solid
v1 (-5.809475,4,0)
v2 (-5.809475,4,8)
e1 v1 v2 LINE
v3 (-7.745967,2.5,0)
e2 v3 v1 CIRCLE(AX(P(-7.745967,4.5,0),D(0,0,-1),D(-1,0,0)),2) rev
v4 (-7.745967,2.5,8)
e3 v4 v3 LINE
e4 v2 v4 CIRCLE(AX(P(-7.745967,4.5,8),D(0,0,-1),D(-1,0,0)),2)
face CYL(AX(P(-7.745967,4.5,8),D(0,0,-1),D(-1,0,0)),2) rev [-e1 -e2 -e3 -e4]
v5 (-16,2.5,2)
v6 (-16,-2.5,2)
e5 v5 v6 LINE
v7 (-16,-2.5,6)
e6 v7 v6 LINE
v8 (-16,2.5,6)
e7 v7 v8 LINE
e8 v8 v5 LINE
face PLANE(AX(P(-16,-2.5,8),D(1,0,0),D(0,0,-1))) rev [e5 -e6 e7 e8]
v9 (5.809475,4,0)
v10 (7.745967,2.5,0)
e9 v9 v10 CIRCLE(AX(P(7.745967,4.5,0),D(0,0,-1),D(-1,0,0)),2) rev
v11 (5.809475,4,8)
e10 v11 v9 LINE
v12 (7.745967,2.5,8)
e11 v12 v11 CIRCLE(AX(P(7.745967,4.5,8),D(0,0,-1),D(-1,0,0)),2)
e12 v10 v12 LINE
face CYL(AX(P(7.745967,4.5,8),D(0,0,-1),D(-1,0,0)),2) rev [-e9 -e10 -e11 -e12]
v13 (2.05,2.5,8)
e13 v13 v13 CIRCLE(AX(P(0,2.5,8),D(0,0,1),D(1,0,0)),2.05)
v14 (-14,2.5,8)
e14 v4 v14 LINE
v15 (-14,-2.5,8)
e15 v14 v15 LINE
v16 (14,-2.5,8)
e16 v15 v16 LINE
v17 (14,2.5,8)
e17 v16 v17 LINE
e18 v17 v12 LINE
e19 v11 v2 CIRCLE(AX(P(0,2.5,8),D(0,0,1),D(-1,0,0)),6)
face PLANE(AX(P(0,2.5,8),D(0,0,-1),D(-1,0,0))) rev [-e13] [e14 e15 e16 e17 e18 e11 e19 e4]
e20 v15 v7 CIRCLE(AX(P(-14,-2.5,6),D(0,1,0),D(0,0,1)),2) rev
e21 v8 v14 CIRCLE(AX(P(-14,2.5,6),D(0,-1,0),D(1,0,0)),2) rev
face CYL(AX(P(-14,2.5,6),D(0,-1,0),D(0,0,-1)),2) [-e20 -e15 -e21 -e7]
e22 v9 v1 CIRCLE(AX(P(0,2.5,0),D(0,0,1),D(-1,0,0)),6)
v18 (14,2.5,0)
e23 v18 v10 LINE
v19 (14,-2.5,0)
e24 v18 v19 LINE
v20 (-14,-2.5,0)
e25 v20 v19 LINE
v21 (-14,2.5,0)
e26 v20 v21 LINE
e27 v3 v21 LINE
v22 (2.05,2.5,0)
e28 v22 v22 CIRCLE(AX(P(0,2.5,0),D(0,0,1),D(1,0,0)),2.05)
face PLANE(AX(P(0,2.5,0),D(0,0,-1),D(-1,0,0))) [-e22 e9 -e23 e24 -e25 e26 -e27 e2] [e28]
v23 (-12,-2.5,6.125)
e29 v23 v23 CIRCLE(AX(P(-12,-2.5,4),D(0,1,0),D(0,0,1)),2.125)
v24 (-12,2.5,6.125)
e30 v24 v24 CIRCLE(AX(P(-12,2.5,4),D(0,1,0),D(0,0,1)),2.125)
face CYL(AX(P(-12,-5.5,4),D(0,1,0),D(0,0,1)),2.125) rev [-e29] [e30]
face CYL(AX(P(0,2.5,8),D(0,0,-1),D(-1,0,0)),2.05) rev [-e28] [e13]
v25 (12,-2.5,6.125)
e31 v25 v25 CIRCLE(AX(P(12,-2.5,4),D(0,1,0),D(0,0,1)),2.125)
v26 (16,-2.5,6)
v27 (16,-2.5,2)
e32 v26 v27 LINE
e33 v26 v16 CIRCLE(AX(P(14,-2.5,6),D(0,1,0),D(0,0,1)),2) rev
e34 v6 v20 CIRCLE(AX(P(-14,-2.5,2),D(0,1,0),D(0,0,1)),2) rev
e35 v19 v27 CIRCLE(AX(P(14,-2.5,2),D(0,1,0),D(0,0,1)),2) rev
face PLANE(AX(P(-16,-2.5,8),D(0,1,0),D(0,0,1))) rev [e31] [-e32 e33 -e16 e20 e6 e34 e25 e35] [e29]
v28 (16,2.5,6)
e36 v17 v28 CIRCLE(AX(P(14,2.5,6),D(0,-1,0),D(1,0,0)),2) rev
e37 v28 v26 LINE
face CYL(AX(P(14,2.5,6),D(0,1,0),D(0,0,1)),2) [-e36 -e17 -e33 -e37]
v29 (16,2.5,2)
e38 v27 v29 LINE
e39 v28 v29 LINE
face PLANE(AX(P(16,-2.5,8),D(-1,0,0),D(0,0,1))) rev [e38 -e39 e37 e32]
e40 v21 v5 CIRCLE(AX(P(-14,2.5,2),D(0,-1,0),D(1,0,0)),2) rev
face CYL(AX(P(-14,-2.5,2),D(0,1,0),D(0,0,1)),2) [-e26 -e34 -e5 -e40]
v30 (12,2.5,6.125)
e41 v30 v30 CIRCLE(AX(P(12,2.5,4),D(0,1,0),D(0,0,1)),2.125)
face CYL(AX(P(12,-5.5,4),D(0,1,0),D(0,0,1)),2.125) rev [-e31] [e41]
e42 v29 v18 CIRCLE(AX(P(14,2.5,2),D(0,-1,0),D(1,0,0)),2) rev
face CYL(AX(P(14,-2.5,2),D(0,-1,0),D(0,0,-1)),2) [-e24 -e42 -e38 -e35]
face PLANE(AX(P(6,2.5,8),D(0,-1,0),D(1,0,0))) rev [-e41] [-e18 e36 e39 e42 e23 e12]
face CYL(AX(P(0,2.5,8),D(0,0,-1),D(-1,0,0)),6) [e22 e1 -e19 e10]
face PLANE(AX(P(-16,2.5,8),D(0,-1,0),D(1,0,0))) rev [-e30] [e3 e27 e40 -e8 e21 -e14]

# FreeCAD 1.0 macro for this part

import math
import FreeCAD as App
import Part
import Sketcher


def edges_at(feature, points):
    """Names of the edges that pass closest to the given points."""
    edges = feature.Shape.Edges
    near = lambda p: min(range(len(edges)), key=lambda i: edges[i].distToShape(Part.Vertex(*p))[0])
    return sorted({f"Edge{near(p) + 1}" for p in points})

doc = App.newDocument("Part")
params = doc.addObject("Spreadsheet::Sheet", "Params")
for row, (alias, value) in enumerate([
    ("sketch1_radius", "6 mm"),
    ("sketch1_diameter", "4.1 mm"),
    ("sketch1_width", "10 mm"),
    ("sketch1_height", "5 mm"),
    ("pad1_length", "8 mm"),
    ("sketch2_diameter", "4.25 mm"),
    ("pocket1_length", "8 mm"),
    ("fillet_radius", "2 mm"),
], start=1):
    params.set(f"A{row}", alias)
    params.set(f"B{row}", "=" + value)
    params.setAlias(f"B{row}", alias)

body = doc.addObject("PartDesign::Body", "Body")

# Sketch on XY plane
sketch1 = doc.addObject("Sketcher::SketchObject", "Sketch")
body.addObject(sketch1)
sketch1.AttachmentSupport = (doc.XY_Plane, [""])
sketch1.MapMode = "FlatFace"
sketch1.addGeometry([
    Part.LineSegment(App.Vector(16, 2.5, 0), App.Vector(6, 2.5, 0)),  # 0
    Part.ArcOfCircle(Part.Circle(App.Vector(0, 2.5, 0), App.Vector(0, 0, 1), 6), math.radians(0), math.radians(180)),  # 1
    Part.LineSegment(App.Vector(-6, 2.5, 0), App.Vector(-16, 2.5, 0)),  # 2
    Part.LineSegment(App.Vector(-16, 2.5, 0), App.Vector(-16, -2.5, 0)),  # 3
    Part.LineSegment(App.Vector(-16, -2.5, 0), App.Vector(16, -2.5, 0)),  # 4
    Part.LineSegment(App.Vector(16, -2.5, 0), App.Vector(16, 2.5, 0)),  # 5
    Part.Circle(App.Vector(0, 2.5, 0), App.Vector(0, 0, 1), 2),  # 6
], False)
sketch1.addConstraint([
    Sketcher.Constraint("Coincident", 0, 2, 1, 1),
    Sketcher.Constraint("Coincident", 1, 2, 2, 1),
    Sketcher.Constraint("Coincident", 2, 2, 3, 1),
    Sketcher.Constraint("Coincident", 3, 2, 4, 1),
    Sketcher.Constraint("Coincident", 4, 2, 5, 1),
    Sketcher.Constraint("Coincident", 5, 2, 0, 1),
    Sketcher.Constraint("Horizontal", 0),
    Sketcher.Constraint("Horizontal", 2),
    Sketcher.Constraint("Vertical", 3),
    Sketcher.Constraint("Horizontal", 4),
    Sketcher.Constraint("Vertical", 5),
    Sketcher.Constraint("Coincident", 6, 3, 1, 3),
    Sketcher.Constraint("Symmetric", 2, 2, 4, 2, -1, 1),
    Sketcher.Constraint("Symmetric", 0, 2, 1, 2, -2),
    Sketcher.Constraint("Horizontal", 6, 3, 0, 2),
    Sketcher.Constraint("Radius", 1, 6.0),
    Sketcher.Constraint("Diameter", 6, 4.1),
    Sketcher.Constraint("DistanceX", 0, 2, 0, 1, 10.0),
    Sketcher.Constraint("DistanceY", 3, 2, 3, 1, 5.0),
])
sketch1.setExpression("Constraints[15]", "Params.sketch1_radius")
sketch1.setExpression("Constraints[16]", "Params.sketch1_diameter")
sketch1.setExpression("Constraints[17]", "Params.sketch1_width")
sketch1.setExpression("Constraints[18]", "Params.sketch1_height")
pad1 = doc.addObject("PartDesign::Pad", "Pad")
body.addObject(pad1)
pad1.Profile = sketch1
pad1.setExpression("Length", "Params.pad1_length")

# Sketch on XZ plane
sketch2 = doc.addObject("Sketcher::SketchObject", "Sketch001")
body.addObject(sketch2)
sketch2.AttachmentSupport = (doc.XZ_Plane, [""])
sketch2.MapMode = "FlatFace"
sketch2.AttachmentOffset = App.Placement(App.Vector(0, 0, -2.5), App.Rotation())
sketch2.addGeometry([
    Part.Circle(App.Vector(12, 4, 0), App.Vector(0, 0, 1), 2.1),
    Part.Circle(App.Vector(-12, 4, 0), App.Vector(0, 0, 1), 2.1),
], False)
sketch2.addConstraint([
    Sketcher.Constraint("Equal", 0, 1),
    Sketcher.Constraint("Symmetric", 0, 3, 1, 3, -2),
    Sketcher.Constraint("Diameter", 0, 4.25),
    Sketcher.Constraint("DistanceX", -1, 1, 0, 3, 12.0),
    Sketcher.Constraint("DistanceY", -1, 1, 0, 3, 4.0),
])
sketch2.setExpression("Constraints[2]", "Params.sketch2_diameter")
pocket1 = doc.addObject("PartDesign::Pocket", "Pocket")
body.addObject(pocket1)
pocket1.Profile = sketch2
pocket1.setExpression("Length", "Params.pocket1_length")
pocket1.Reversed = True
doc.recompute()

fillet = doc.addObject("PartDesign::Fillet", "Fillet")
body.addObject(fillet)
fillet.Base = (pocket1, edges_at(pocket1, [
    (-6, 2.5, 4),
    (6, 2.5, 4),
    (-16, 0, 8),
    (16, 0, 8),
    (-16, 0, 0),
    (16, 0, 0),
]))
fillet.setExpression("Radius", "Params.fillet_radius")

doc.recompute()
